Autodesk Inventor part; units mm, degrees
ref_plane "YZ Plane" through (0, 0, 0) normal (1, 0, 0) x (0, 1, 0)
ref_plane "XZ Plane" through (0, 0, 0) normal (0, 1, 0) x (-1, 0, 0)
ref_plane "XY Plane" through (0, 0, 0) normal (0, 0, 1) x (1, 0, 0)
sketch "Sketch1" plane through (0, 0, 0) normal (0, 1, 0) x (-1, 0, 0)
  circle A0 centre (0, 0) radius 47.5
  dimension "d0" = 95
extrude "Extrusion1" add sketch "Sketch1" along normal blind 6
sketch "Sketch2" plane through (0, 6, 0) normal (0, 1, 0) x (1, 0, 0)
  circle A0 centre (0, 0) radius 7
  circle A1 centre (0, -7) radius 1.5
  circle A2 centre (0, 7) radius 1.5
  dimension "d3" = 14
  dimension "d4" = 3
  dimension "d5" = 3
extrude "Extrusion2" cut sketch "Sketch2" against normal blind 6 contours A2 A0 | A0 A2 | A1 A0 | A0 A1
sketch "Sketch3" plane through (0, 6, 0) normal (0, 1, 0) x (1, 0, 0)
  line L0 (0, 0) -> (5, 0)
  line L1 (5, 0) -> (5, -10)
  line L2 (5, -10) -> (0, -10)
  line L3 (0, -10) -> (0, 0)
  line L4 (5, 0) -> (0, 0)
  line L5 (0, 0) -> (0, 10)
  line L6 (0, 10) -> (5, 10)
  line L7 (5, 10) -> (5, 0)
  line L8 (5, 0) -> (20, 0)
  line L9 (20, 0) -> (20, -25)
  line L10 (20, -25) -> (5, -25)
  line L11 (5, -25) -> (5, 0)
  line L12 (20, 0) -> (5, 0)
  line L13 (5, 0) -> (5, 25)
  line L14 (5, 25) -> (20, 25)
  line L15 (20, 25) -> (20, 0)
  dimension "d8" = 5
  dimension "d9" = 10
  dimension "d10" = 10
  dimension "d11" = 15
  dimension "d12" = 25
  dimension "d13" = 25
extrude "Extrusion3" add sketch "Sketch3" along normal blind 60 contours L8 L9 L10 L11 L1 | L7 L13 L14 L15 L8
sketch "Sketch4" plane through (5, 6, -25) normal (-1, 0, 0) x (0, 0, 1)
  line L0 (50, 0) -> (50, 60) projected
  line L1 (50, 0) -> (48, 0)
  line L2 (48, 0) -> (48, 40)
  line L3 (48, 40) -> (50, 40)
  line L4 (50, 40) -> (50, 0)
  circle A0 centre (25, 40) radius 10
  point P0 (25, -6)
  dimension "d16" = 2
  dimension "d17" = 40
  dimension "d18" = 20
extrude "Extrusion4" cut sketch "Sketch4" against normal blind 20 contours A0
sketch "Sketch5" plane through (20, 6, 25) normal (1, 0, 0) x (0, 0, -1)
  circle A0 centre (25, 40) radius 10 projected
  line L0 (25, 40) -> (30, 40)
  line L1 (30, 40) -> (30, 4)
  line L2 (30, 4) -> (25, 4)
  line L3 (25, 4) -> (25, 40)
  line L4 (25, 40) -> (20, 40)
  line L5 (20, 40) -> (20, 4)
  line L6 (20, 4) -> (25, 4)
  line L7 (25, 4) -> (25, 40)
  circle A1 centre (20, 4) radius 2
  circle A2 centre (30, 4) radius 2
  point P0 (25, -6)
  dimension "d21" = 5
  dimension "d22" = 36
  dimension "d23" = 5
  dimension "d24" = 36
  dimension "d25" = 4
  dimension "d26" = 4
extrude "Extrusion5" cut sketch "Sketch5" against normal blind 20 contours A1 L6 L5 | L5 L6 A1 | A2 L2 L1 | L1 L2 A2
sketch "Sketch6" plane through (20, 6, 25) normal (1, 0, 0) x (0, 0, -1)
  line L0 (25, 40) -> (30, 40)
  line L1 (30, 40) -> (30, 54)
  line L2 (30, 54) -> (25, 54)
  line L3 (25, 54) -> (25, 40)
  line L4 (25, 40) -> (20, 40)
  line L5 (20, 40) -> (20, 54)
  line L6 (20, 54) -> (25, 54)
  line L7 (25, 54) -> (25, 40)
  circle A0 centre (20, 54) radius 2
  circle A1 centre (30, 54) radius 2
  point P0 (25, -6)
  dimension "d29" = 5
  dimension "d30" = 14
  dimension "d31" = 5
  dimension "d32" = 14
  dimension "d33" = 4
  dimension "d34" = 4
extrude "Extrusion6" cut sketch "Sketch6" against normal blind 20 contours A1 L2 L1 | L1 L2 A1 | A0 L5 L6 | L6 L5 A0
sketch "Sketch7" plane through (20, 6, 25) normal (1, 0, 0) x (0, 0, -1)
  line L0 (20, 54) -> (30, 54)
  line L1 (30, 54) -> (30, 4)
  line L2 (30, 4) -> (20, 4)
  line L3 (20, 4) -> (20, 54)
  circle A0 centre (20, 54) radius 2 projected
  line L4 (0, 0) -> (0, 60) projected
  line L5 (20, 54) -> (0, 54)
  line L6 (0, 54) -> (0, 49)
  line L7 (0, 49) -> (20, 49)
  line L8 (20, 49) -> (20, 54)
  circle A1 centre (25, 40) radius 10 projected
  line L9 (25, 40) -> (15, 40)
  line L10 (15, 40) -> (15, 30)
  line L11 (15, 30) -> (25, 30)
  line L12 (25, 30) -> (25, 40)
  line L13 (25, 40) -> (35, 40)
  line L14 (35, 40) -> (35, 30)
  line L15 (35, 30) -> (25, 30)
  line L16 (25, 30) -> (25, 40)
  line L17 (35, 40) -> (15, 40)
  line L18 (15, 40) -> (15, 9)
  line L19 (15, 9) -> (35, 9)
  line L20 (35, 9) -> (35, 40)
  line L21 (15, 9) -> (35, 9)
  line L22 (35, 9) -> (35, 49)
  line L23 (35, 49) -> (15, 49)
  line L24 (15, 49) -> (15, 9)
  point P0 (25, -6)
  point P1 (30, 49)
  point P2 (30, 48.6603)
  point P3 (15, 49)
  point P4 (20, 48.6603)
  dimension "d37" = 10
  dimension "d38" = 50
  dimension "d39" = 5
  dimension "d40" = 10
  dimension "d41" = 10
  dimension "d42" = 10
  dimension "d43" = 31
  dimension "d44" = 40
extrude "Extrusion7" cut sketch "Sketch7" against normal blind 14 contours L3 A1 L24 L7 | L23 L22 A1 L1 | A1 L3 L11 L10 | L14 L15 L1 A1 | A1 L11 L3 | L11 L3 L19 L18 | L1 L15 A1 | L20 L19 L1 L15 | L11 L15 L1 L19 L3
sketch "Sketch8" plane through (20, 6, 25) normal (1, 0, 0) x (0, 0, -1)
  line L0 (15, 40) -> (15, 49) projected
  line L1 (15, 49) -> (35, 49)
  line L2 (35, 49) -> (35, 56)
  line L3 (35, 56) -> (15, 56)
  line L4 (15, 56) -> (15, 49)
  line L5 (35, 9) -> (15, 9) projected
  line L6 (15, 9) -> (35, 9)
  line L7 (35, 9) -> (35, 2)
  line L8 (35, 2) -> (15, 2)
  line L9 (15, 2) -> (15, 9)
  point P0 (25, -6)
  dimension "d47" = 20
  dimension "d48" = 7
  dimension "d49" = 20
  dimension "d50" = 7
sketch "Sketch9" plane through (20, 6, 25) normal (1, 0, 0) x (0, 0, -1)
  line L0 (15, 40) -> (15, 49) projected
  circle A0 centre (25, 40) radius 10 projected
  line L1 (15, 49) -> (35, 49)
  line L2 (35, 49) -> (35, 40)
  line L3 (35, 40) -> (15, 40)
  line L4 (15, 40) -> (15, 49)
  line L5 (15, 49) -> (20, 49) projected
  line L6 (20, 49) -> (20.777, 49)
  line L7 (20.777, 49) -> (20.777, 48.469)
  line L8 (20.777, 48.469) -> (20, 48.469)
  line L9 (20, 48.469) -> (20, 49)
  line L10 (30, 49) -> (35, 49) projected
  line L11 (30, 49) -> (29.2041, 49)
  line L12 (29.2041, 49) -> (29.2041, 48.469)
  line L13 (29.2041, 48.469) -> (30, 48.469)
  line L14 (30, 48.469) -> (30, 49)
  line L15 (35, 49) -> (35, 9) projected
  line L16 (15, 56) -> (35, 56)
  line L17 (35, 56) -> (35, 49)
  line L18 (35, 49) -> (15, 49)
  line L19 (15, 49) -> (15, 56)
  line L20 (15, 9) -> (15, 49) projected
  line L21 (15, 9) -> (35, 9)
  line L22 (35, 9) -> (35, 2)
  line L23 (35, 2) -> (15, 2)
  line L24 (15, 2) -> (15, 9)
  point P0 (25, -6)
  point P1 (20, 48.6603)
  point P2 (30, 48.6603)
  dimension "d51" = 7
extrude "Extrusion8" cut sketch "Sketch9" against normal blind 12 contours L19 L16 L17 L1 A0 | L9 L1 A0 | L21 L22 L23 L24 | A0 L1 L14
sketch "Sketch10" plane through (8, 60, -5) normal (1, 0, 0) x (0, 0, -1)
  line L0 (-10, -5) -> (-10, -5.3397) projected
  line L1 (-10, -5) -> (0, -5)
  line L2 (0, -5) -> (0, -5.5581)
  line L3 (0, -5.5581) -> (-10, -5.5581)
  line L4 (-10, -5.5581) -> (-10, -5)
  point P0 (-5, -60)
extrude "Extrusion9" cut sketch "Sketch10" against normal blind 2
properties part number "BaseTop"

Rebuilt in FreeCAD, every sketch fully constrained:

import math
import FreeCAD as App
import Part
import Sketcher

V = App.Vector
Q = App.Units.Quantity


def add_polygon(sketch, points):
    """Adds a closed chain of lines whose ends are joined by coincident constraints."""
    first, n = sketch.GeometryCount, len(points)
    for a, b in zip(points, points[1:] + points[:1]):
        sketch.addGeometry(Part.LineSegment(App.Vector(*a, 0), App.Vector(*b, 0)), False)
    for i in range(n):
        sketch.addConstraint(Sketcher.Constraint("Coincident", first + i, 2, first + (i + 1) % n, 1))

doc = App.newDocument("Part")
body = doc.addObject("PartDesign::Body", "Body")

# Sketch on XZ plane
sketch1 = body.newObject("Sketcher::SketchObject", "Sketch")
sketch1.AttachmentSupport = (doc.getObject("XZ_Plane"), [""])
sketch1.MapMode = "FlatFace"
sketch1.addGeometry(Part.Circle(V(0, 0, 0), V(0, 0, 1), 48), False)
sketch1.addConstraint(Sketcher.Constraint("Coincident", 0, 3, -1, 1))
sketch1.addConstraint(Sketcher.Constraint("Diameter", 0, Q("95 mm")))
pad1 = body.newObject("PartDesign::Pad", "Pad")
pad1.Profile = sketch1
pad1.Length = 6
pad1.Reversed = True

# Sketch on XZ plane
sketch2 = body.newObject("Sketcher::SketchObject", "Sketch001")
sketch2.AttachmentSupport = (doc.getObject("XZ_Plane"), [""])
sketch2.MapMode = "FlatFace"
sketch2.AttachmentOffset = App.Placement(V(0, 0, -6), App.Rotation())
sketch2.addGeometry(Part.Circle(V(0, -7, 0), V(0, 0, 1), 1.5), False)
sketch2.addGeometry(Part.Circle(V(0, 7, 0), V(0, 0, 1), 1.5), False)
sketch2.addConstraint(Sketcher.Constraint("Equal", 0, 1))
sketch2.addConstraint(Sketcher.Constraint("Symmetric", 0, 3, 1, 3, -1, 1))
sketch2.addConstraint(Sketcher.Constraint("PointOnObject", 0, 3, -2))
sketch2.addConstraint(Sketcher.Constraint("Diameter", 0, Q("3 mm")))
sketch2.addConstraint(Sketcher.Constraint("DistanceY", 0, 3, 1, 3, Q("14 mm")))
pocket1 = body.newObject("PartDesign::Pocket", "Pocket")
pocket1.Profile = sketch2
pocket1.Length = 6
pocket1.Reversed = True

# Sketch on XZ plane
sketch3 = body.newObject("Sketcher::SketchObject", "Sketch002")
sketch3.AttachmentSupport = (doc.getObject("XZ_Plane"), [""])
sketch3.MapMode = "FlatFace"
sketch3.AttachmentOffset = App.Placement(V(0, 0, -6), App.Rotation())
add_polygon(sketch3, [(20, 25), (20, -25), (5, -25), (5, 25)])  # lines 0-3
sketch3.addConstraint(Sketcher.Constraint("Vertical", 0))
sketch3.addConstraint(Sketcher.Constraint("Horizontal", 1))
sketch3.addConstraint(Sketcher.Constraint("Vertical", 2))
sketch3.addConstraint(Sketcher.Constraint("Horizontal", 3))
sketch3.addConstraint(Sketcher.Constraint("DistanceX", 1, 2, 1, 1, Q("15 mm")))
sketch3.addConstraint(Sketcher.Constraint("DistanceY", 0, 2, -1, 1, Q("25 mm")))
sketch3.addConstraint(Sketcher.Constraint("DistanceX", -1, 1, 1, 2, Q("5 mm")))
sketch3.addConstraint(Sketcher.Constraint("DistanceY", -1, 1, 2, 2, Q("25 mm")))
pad2 = body.newObject("PartDesign::Pad", "Pad001")
pad2.Profile = sketch3
pad2.Length = 60
pad2.Reversed = True

# Sketch on YZ plane
sketch4 = body.newObject("Sketcher::SketchObject", "Sketch003")
sketch4.AttachmentSupport = (doc.getObject("YZ_Plane"), [""])
sketch4.MapMode = "FlatFace"
sketch4.AttachmentOffset = App.Placement(V(0, 0, 5), App.Rotation())
sketch4.addGeometry(Part.Circle(V(46, 0, 0), V(0, 0, 1), 10), False)
sketch4.addConstraint(Sketcher.Constraint("PointOnObject", 0, 3, -1))
sketch4.addConstraint(Sketcher.Constraint("Diameter", 0, Q("20 mm")))
sketch4.addConstraint(Sketcher.Constraint("DistanceX", -1, 1, 0, 3, Q("46 mm")))
pocket2 = body.newObject("PartDesign::Pocket", "Pocket001")
pocket2.Profile = sketch4
pocket2.Length = 20
pocket2.Reversed = True

# Sketch on YZ plane
sketch5 = body.newObject("Sketcher::SketchObject", "Sketch004")
sketch5.AttachmentSupport = (doc.getObject("YZ_Plane"), [""])
sketch5.MapMode = "FlatFace"
sketch5.AttachmentOffset = App.Placement(V(0, 0, 20), App.Rotation())
sketch5.addGeometry(Part.Circle(V(10, 5, 0), V(0, 0, 1), 2), False)
sketch5.addGeometry(Part.Circle(V(10, -5, 0), V(0, 0, 1), 2), False)
sketch5.addConstraint(Sketcher.Constraint("Equal", 0, 1))
sketch5.addConstraint(Sketcher.Constraint("Symmetric", 0, 3, 1, 3, -1))
sketch5.addConstraint(Sketcher.Constraint("Diameter", 0, Q("4 mm")))
sketch5.addConstraint(Sketcher.Constraint("DistanceY", -1, 1, 0, 3, Q("5 mm")))
sketch5.addConstraint(Sketcher.Constraint("DistanceX", -1, 1, 0, 3, Q("10 mm")))
pocket3 = body.newObject("PartDesign::Pocket", "Pocket002")
pocket3.Profile = sketch5
pocket3.Length = 20

# Sketch on YZ plane
sketch6 = body.newObject("Sketcher::SketchObject", "Sketch005")
sketch6.AttachmentSupport = (doc.getObject("YZ_Plane"), [""])
sketch6.MapMode = "FlatFace"
sketch6.AttachmentOffset = App.Placement(V(0, 0, 20), App.Rotation())
sketch6.addGeometry(Part.Circle(V(60, -5, 0), V(0, 0, 1), 2), False)
sketch6.addGeometry(Part.Circle(V(60, 5, 0), V(0, 0, 1), 2), False)
sketch6.addConstraint(Sketcher.Constraint("Equal", 0, 1))
sketch6.addConstraint(Sketcher.Constraint("Symmetric", 0, 3, 1, 3, -1))
sketch6.addConstraint(Sketcher.Constraint("Diameter", 0, Q("4 mm")))
sketch6.addConstraint(Sketcher.Constraint("DistanceY", 0, 3, -1, 1, Q("5 mm")))
sketch6.addConstraint(Sketcher.Constraint("DistanceX", -1, 1, 0, 3, Q("60 mm")))
pocket4 = body.newObject("PartDesign::Pocket", "Pocket003")
pocket4.Profile = sketch6
pocket4.Length = 20

# Sketch on YZ plane
sketch7 = body.newObject("Sketcher::SketchObject", "Sketch006")
sketch7.AttachmentSupport = (doc.getObject("YZ_Plane"), [""])
sketch7.MapMode = "FlatFace"
sketch7.AttachmentOffset = App.Placement(V(0, 0, 20), App.Rotation())
sketch7.addGeometry(Part.LineSegment(V(54.66, 5, 0), V(55, 5, 0)), False)
sketch7.addGeometry(Part.LineSegment(V(55, 5, 0), V(55, 10, 0)), False)
sketch7.addGeometry(Part.LineSegment(V(55, 10, 0), V(46, 10, 0)), False)
sketch7.addGeometry(Part.ArcOfCircle(Part.Circle(V(46, 0, 0), V(0, 0, 1), 10), math.radians(30), math.radians(90)), False)
sketch7.addGeometry(Part.LineSegment(V(55, -10, 0), V(55, -5, 0)), False)
sketch7.addGeometry(Part.LineSegment(V(55, -5, 0), V(54.66, -5, 0)), False)
sketch7.addGeometry(Part.ArcOfCircle(Part.Circle(V(46, 0, 0), V(0, 0, 1), 10), math.radians(-90), math.radians(-30)), False)
sketch7.addGeometry(Part.LineSegment(V(46, -10, 0), V(55, -10, 0)), False)
sketch7.addGeometry(Part.LineSegment(V(46, 10, 0), V(15, 10, 0)), False)
sketch7.addGeometry(Part.LineSegment(V(15, 10, 0), V(15, -10, 0)), False)
sketch7.addGeometry(Part.LineSegment(V(15, -10, 0), V(46, -10, 0)), False)
sketch7.addGeometry(Part.ArcOfCircle(Part.Circle(V(46, 0, 0), V(0, 0, 1), 10), math.radians(90), math.radians(270)), False)
sketch7.addConstraint(Sketcher.Constraint("Coincident", 0, 2, 1, 1))
sketch7.addConstraint(Sketcher.Constraint("Coincident", 1, 2, 2, 1))
sketch7.addConstraint(Sketcher.Constraint("Tangent", 2, 2, 3, 2))
sketch7.addConstraint(Sketcher.Constraint("Coincident", 3, 1, 0, 1))
sketch7.addConstraint(Sketcher.Constraint("Coincident", 4, 2, 5, 1))
sketch7.addConstraint(Sketcher.Constraint("Coincident", 5, 2, 6, 2))
sketch7.addConstraint(Sketcher.Constraint("Tangent", 6, 1, 7, 1))
sketch7.addConstraint(Sketcher.Constraint("Coincident", 7, 2, 4, 1))
sketch7.addConstraint(Sketcher.Constraint("Coincident", 8, 2, 9, 1))
sketch7.addConstraint(Sketcher.Constraint("Coincident", 9, 2, 10, 1))
sketch7.addConstraint(Sketcher.Constraint("Tangent", 10, 2, 11, 2))
sketch7.addConstraint(Sketcher.Constraint("Tangent", 11, 1, 8, 1))
sketch7.addConstraint(Sketcher.Constraint("Horizontal", 0))
sketch7.addConstraint(Sketcher.Constraint("Vertical", 1))
sketch7.addConstraint(Sketcher.Constraint("Horizontal", 2))
sketch7.addConstraint(Sketcher.Constraint("Vertical", 4))
sketch7.addConstraint(Sketcher.Constraint("Horizontal", 5))
sketch7.addConstraint(Sketcher.Constraint("Horizontal", 7))
sketch7.addConstraint(Sketcher.Constraint("Horizontal", 8))
sketch7.addConstraint(Sketcher.Constraint("Vertical", 9))
sketch7.addConstraint(Sketcher.Constraint("Horizontal", 10))
sketch7.addConstraint(Sketcher.Constraint("Coincident", 6, 3, 3, 3))
sketch7.addConstraint(Sketcher.Constraint("Coincident", 11, 3, 3, 3))
sketch7.addConstraint(Sketcher.Constraint("Equal", 3, 6))
sketch7.addConstraint(Sketcher.Constraint("Equal", 6, 11))
sketch7.addConstraint(Sketcher.Constraint("Symmetric", 0, 2, 4, 2, -1))
sketch7.addConstraint(Sketcher.Constraint("PointOnObject", 3, 3, -1))
sketch7.addConstraint(Sketcher.Constraint("Radius", 3, Q("10 mm")))
sketch7.addConstraint(Sketcher.Constraint("DistanceX", 8, 2, 8, 1, Q("31 mm")))
sketch7.addConstraint(Sketcher.Constraint("DistanceY", 1, 1, 1, 2, Q("5 mm")))
sketch7.addConstraint(Sketcher.Constraint("DistanceX", 2, 2, 2, 1, Q("9 mm")))
sketch7.addConstraint(Sketcher.Constraint("DistanceX", -1, 1, 3, 3, Q("46 mm")))
pocket5 = body.newObject("PartDesign::Pocket", "Pocket004")
pocket5.Profile = sketch7
pocket5.Length = 14

# Sketch on YZ plane
sketch8 = body.newObject("Sketcher::SketchObject", "Sketch007")
sketch8.AttachmentSupport = (doc.getObject("YZ_Plane"), [""])
sketch8.MapMode = "FlatFace"
sketch8.AttachmentOffset = App.Placement(V(0, 0, 20), App.Rotation())
sketch8.addGeometry(Part.LineSegment(V(62, 10, 0), V(55, 10, 0)), False)  # 0
sketch8.addGeometry(Part.LineSegment(V(55, 10, 0), V(55, 5, 0)), False)  # 1
sketch8.addGeometry(Part.LineSegment(V(55, 5, 0), V(54.66, 5, 0)), False)  # 2
sketch8.addGeometry(Part.ArcOfCircle(Part.Circle(V(46, 0, 0), V(0, 0, 1), 10), math.radians(-30), math.radians(30)), False)  # 3
sketch8.addGeometry(Part.LineSegment(V(54.66, -5, 0), V(55, -5, 0)), False)  # 4
sketch8.addGeometry(Part.LineSegment(V(55, -5, 0), V(55, -10, 0)), False)  # 5
sketch8.addGeometry(Part.LineSegment(V(55, -10, 0), V(62, -10, 0)), False)  # 6
sketch8.addGeometry(Part.LineSegment(V(62, -10, 0), V(62, 10, 0)), False)  # 7
add_polygon(sketch8, [(15, -10), (15, 10), (8, 10), (8, -10)])  # lines 8-11
sketch8.addConstraint(Sketcher.Constraint("Coincident", 0, 2, 1, 1))
sketch8.addConstraint(Sketcher.Constraint("Coincident", 1, 2, 2, 1))
sketch8.addConstraint(Sketcher.Constraint("Coincident", 2, 2, 3, 2))
sketch8.addConstraint(Sketcher.Constraint("Coincident", 3, 1, 4, 1))
sketch8.addConstraint(Sketcher.Constraint("Coincident", 4, 2, 5, 1))
sketch8.addConstraint(Sketcher.Constraint("Coincident", 5, 2, 6, 1))
sketch8.addConstraint(Sketcher.Constraint("Coincident", 6, 2, 7, 1))
sketch8.addConstraint(Sketcher.Constraint("Coincident", 7, 2, 0, 1))
sketch8.addConstraint(Sketcher.Constraint("Horizontal", 0))
sketch8.addConstraint(Sketcher.Constraint("Vertical", 1))
sketch8.addConstraint(Sketcher.Constraint("Horizontal", 2))
sketch8.addConstraint(Sketcher.Constraint("Horizontal", 4))
sketch8.addConstraint(Sketcher.Constraint("Vertical", 5))
sketch8.addConstraint(Sketcher.Constraint("Horizontal", 6))
sketch8.addConstraint(Sketcher.Constraint("Vertical", 7))
sketch8.addConstraint(Sketcher.Constraint("Vertical", 8))
sketch8.addConstraint(Sketcher.Constraint("Horizontal", 9))
sketch8.addConstraint(Sketcher.Constraint("Vertical", 10))
sketch8.addConstraint(Sketcher.Constraint("Horizontal", 11))
sketch8.addConstraint(Sketcher.Constraint("Symmetric", 2, 2, 3, 1, -1))
sketch8.addConstraint(Sketcher.Constraint("Symmetric", 0, 2, 5, 2, -1))
sketch8.addConstraint(Sketcher.Constraint("Horizontal", 7, 2, 8, 2))
sketch8.addConstraint(Sketcher.Constraint("Horizontal", 6, 2, 10, 2))
sketch8.addConstraint(Sketcher.Constraint("Equal", 6, 9))
sketch8.addConstraint(Sketcher.Constraint("DistanceX", 0, 2, 0, 1, Q("7 mm")))
sketch8.addConstraint(Sketcher.Constraint("Radius", 3, Q("10 mm")))
sketch8.addConstraint(Sketcher.Constraint("DistanceY", 1, 2, 1, 1, Q("5 mm")))
sketch8.addConstraint(Sketcher.Constraint("DistanceY", 7, 1, 7, 2, Q("20 mm")))
sketch8.addConstraint(Sketcher.Constraint("DistanceX", -1, 1, 3, 3, Q("46 mm")))
sketch8.addConstraint(Sketcher.Constraint("DistanceX", -1, 1, 0, 2, Q("55 mm")))
sketch8.addConstraint(Sketcher.Constraint("DistanceX", -1, 1, 8, 2, Q("15 mm")))
pocket6 = body.newObject("PartDesign::Pocket", "Pocket005")
pocket6.Profile = sketch8
pocket6.Length = 12

# Sketch on YZ plane
sketch9 = body.newObject("Sketcher::SketchObject", "Sketch008")
sketch9.AttachmentSupport = (doc.getObject("YZ_Plane"), [""])
sketch9.MapMode = "FlatFace"
sketch9.AttachmentOffset = App.Placement(V(0, 0, 8), App.Rotation())
add_polygon(sketch9, [(55, -5), (55, 5), (54.4, 5), (54.4, -5)])  # lines 0-3
sketch9.addConstraint(Sketcher.Constraint("Vertical", 0))
sketch9.addConstraint(Sketcher.Constraint("Horizontal", 1))
sketch9.addConstraint(Sketcher.Constraint("Vertical", 2))
sketch9.addConstraint(Sketcher.Constraint("Horizontal", 3))
sketch9.addConstraint(Sketcher.Constraint("DistanceY", 0, 1, 0, 2, Q("10 mm")))
sketch9.addConstraint(Sketcher.Constraint("DistanceX", -1, 1, 0, 2, Q("55 mm")))
sketch9.addConstraint(Sketcher.Constraint("DistanceY", -1, 1, 0, 2, Q("5 mm")))
sketch9.addConstraint(Sketcher.Constraint("DistanceX", 1, 2, 1, 1, Q("0.558 mm")))
pocket7 = body.newObject("PartDesign::Pocket", "Pocket006")
pocket7.Profile = sketch9
pocket7.Length = 2

doc.recompute()
